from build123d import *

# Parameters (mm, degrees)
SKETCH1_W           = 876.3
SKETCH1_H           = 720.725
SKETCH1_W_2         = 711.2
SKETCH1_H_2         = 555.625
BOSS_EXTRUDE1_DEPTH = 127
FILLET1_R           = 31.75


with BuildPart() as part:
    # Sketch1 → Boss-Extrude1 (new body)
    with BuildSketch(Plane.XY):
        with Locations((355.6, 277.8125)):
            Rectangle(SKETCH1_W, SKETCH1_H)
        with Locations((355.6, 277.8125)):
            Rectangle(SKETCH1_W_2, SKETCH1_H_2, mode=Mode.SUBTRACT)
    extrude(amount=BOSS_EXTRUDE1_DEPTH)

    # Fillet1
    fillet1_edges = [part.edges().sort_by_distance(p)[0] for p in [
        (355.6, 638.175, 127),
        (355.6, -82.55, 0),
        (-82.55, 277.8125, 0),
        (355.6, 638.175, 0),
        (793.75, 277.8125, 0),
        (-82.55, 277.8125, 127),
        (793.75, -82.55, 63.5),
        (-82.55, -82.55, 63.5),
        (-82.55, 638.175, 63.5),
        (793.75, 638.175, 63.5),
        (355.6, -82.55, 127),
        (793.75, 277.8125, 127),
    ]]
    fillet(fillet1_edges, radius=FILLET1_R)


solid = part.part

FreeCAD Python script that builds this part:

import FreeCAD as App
import Part
import Sketcher

V = App.Vector
Q = App.Units.Quantity


def edges_at(feature, points):
    """Names of the edges that pass closest to the given points."""
    edges = feature.Shape.Edges
    near = lambda p: min(range(len(edges)), key=lambda i: edges[i].distToShape(Part.Vertex(*p))[0])
    return sorted({f"Edge{near(p) + 1}" for p in points})

doc = App.newDocument("Part")
body = doc.addObject("PartDesign::Body", "Body")

sketch1 = doc.addObject("Sketcher::SketchObject", "Sketch")
body.addObject(sketch1)
sketch1.AttachmentSupport = (doc.XY_Plane, [""])
sketch1.MapMode = "FlatFace"
sketch1.addGeometry(Part.LineSegment(V(-82.55, 638.175, 0), V(-82.55, -82.55, 0)), False)
sketch1.addGeometry(Part.LineSegment(V(-82.55, -82.55, 0), V(793.75, -82.55, 0)), False)
sketch1.addGeometry(Part.LineSegment(V(793.75, -82.55, 0), V(793.75, 638.175, 0)), False)
sketch1.addGeometry(Part.LineSegment(V(793.75, 638.175, 0), V(-82.55, 638.175, 0)), False)
sketch1.addGeometry(Part.LineSegment(V(711.2, 0, 0), V(0, 0, 0)), False)
sketch1.addGeometry(Part.LineSegment(V(0, 0, 0), V(0, 555.625, 0)), False)
sketch1.addGeometry(Part.LineSegment(V(0, 555.625, 0), V(711.2, 555.625, 0)), False)
sketch1.addGeometry(Part.LineSegment(V(711.2, 555.625, 0), V(711.2, 0, 0)), False)
sketch1.addConstraint(Sketcher.Constraint("Coincident", 0, 2, 1, 1))
sketch1.addConstraint(Sketcher.Constraint("Coincident", 1, 2, 2, 1))
sketch1.addConstraint(Sketcher.Constraint("Coincident", 2, 2, 3, 1))
sketch1.addConstraint(Sketcher.Constraint("Coincident", 3, 2, 0, 1))
sketch1.addConstraint(Sketcher.Constraint("Coincident", 4, 2, 5, 1))
sketch1.addConstraint(Sketcher.Constraint("Coincident", 5, 2, 6, 1))
sketch1.addConstraint(Sketcher.Constraint("Coincident", 6, 2, 7, 1))
sketch1.addConstraint(Sketcher.Constraint("Coincident", 7, 2, 4, 1))
sketch1.addConstraint(Sketcher.Constraint("Vertical", 0))
sketch1.addConstraint(Sketcher.Constraint("Horizontal", 1))
sketch1.addConstraint(Sketcher.Constraint("Vertical", 2))
sketch1.addConstraint(Sketcher.Constraint("Horizontal", 3))
sketch1.addConstraint(Sketcher.Constraint("Horizontal", 4))
sketch1.addConstraint(Sketcher.Constraint("Vertical", 5))
sketch1.addConstraint(Sketcher.Constraint("Horizontal", 6))
sketch1.addConstraint(Sketcher.Constraint("Vertical", 7))
sketch1.addConstraint(Sketcher.Constraint("Coincident", 4, 2, -1, 1))
sketch1.addConstraint(Sketcher.Constraint("DistanceX", 4, 2, 4, 1, Q("28 in")))
sketch1.addConstraint(Sketcher.Constraint("DistanceX", 1, 1, 1, 2, Q("34.5 in")))
sketch1.addConstraint(Sketcher.Constraint("DistanceY", 0, 2, 0, 1, Q("28.375 in")))
sketch1.addConstraint(Sketcher.Constraint("DistanceY", 5, 1, 5, 2, Q("21.875 in")))
sketch1.addConstraint(Sketcher.Constraint("DistanceX", 0, 2, -1, 1, Q("3.25 in")))
sketch1.addConstraint(Sketcher.Constraint("DistanceY", 0, 2, -1, 1, Q("3.25 in")))
pad1 = doc.addObject("PartDesign::Pad", "Pad")
body.addObject(pad1)
pad1.Profile = sketch1
pad1.Length = Q("5 in")
doc.recompute()

fillet = doc.addObject("PartDesign::Fillet", "Fillet")
body.addObject(fillet)
fillet.Base = (pad1, edges_at(pad1, [
    (355.6, 638.175, 127),
    (355.6, -82.55, 0),
    (-82.55, 277.812, 0),
    (355.6, 638.175, 0),
    (793.75, 277.812, 0),
    (-82.55, 277.812, 127),
    (793.75, -82.55, 63.5),
    (-82.55, -82.55, 63.5),
    (-82.55, 638.175, 63.5),
    (793.75, 638.175, 63.5),
    (355.6, -82.55, 127),
    (793.75, 277.812, 127),
]))
fillet.Radius = Q("1.25 in")

doc.recompute()
